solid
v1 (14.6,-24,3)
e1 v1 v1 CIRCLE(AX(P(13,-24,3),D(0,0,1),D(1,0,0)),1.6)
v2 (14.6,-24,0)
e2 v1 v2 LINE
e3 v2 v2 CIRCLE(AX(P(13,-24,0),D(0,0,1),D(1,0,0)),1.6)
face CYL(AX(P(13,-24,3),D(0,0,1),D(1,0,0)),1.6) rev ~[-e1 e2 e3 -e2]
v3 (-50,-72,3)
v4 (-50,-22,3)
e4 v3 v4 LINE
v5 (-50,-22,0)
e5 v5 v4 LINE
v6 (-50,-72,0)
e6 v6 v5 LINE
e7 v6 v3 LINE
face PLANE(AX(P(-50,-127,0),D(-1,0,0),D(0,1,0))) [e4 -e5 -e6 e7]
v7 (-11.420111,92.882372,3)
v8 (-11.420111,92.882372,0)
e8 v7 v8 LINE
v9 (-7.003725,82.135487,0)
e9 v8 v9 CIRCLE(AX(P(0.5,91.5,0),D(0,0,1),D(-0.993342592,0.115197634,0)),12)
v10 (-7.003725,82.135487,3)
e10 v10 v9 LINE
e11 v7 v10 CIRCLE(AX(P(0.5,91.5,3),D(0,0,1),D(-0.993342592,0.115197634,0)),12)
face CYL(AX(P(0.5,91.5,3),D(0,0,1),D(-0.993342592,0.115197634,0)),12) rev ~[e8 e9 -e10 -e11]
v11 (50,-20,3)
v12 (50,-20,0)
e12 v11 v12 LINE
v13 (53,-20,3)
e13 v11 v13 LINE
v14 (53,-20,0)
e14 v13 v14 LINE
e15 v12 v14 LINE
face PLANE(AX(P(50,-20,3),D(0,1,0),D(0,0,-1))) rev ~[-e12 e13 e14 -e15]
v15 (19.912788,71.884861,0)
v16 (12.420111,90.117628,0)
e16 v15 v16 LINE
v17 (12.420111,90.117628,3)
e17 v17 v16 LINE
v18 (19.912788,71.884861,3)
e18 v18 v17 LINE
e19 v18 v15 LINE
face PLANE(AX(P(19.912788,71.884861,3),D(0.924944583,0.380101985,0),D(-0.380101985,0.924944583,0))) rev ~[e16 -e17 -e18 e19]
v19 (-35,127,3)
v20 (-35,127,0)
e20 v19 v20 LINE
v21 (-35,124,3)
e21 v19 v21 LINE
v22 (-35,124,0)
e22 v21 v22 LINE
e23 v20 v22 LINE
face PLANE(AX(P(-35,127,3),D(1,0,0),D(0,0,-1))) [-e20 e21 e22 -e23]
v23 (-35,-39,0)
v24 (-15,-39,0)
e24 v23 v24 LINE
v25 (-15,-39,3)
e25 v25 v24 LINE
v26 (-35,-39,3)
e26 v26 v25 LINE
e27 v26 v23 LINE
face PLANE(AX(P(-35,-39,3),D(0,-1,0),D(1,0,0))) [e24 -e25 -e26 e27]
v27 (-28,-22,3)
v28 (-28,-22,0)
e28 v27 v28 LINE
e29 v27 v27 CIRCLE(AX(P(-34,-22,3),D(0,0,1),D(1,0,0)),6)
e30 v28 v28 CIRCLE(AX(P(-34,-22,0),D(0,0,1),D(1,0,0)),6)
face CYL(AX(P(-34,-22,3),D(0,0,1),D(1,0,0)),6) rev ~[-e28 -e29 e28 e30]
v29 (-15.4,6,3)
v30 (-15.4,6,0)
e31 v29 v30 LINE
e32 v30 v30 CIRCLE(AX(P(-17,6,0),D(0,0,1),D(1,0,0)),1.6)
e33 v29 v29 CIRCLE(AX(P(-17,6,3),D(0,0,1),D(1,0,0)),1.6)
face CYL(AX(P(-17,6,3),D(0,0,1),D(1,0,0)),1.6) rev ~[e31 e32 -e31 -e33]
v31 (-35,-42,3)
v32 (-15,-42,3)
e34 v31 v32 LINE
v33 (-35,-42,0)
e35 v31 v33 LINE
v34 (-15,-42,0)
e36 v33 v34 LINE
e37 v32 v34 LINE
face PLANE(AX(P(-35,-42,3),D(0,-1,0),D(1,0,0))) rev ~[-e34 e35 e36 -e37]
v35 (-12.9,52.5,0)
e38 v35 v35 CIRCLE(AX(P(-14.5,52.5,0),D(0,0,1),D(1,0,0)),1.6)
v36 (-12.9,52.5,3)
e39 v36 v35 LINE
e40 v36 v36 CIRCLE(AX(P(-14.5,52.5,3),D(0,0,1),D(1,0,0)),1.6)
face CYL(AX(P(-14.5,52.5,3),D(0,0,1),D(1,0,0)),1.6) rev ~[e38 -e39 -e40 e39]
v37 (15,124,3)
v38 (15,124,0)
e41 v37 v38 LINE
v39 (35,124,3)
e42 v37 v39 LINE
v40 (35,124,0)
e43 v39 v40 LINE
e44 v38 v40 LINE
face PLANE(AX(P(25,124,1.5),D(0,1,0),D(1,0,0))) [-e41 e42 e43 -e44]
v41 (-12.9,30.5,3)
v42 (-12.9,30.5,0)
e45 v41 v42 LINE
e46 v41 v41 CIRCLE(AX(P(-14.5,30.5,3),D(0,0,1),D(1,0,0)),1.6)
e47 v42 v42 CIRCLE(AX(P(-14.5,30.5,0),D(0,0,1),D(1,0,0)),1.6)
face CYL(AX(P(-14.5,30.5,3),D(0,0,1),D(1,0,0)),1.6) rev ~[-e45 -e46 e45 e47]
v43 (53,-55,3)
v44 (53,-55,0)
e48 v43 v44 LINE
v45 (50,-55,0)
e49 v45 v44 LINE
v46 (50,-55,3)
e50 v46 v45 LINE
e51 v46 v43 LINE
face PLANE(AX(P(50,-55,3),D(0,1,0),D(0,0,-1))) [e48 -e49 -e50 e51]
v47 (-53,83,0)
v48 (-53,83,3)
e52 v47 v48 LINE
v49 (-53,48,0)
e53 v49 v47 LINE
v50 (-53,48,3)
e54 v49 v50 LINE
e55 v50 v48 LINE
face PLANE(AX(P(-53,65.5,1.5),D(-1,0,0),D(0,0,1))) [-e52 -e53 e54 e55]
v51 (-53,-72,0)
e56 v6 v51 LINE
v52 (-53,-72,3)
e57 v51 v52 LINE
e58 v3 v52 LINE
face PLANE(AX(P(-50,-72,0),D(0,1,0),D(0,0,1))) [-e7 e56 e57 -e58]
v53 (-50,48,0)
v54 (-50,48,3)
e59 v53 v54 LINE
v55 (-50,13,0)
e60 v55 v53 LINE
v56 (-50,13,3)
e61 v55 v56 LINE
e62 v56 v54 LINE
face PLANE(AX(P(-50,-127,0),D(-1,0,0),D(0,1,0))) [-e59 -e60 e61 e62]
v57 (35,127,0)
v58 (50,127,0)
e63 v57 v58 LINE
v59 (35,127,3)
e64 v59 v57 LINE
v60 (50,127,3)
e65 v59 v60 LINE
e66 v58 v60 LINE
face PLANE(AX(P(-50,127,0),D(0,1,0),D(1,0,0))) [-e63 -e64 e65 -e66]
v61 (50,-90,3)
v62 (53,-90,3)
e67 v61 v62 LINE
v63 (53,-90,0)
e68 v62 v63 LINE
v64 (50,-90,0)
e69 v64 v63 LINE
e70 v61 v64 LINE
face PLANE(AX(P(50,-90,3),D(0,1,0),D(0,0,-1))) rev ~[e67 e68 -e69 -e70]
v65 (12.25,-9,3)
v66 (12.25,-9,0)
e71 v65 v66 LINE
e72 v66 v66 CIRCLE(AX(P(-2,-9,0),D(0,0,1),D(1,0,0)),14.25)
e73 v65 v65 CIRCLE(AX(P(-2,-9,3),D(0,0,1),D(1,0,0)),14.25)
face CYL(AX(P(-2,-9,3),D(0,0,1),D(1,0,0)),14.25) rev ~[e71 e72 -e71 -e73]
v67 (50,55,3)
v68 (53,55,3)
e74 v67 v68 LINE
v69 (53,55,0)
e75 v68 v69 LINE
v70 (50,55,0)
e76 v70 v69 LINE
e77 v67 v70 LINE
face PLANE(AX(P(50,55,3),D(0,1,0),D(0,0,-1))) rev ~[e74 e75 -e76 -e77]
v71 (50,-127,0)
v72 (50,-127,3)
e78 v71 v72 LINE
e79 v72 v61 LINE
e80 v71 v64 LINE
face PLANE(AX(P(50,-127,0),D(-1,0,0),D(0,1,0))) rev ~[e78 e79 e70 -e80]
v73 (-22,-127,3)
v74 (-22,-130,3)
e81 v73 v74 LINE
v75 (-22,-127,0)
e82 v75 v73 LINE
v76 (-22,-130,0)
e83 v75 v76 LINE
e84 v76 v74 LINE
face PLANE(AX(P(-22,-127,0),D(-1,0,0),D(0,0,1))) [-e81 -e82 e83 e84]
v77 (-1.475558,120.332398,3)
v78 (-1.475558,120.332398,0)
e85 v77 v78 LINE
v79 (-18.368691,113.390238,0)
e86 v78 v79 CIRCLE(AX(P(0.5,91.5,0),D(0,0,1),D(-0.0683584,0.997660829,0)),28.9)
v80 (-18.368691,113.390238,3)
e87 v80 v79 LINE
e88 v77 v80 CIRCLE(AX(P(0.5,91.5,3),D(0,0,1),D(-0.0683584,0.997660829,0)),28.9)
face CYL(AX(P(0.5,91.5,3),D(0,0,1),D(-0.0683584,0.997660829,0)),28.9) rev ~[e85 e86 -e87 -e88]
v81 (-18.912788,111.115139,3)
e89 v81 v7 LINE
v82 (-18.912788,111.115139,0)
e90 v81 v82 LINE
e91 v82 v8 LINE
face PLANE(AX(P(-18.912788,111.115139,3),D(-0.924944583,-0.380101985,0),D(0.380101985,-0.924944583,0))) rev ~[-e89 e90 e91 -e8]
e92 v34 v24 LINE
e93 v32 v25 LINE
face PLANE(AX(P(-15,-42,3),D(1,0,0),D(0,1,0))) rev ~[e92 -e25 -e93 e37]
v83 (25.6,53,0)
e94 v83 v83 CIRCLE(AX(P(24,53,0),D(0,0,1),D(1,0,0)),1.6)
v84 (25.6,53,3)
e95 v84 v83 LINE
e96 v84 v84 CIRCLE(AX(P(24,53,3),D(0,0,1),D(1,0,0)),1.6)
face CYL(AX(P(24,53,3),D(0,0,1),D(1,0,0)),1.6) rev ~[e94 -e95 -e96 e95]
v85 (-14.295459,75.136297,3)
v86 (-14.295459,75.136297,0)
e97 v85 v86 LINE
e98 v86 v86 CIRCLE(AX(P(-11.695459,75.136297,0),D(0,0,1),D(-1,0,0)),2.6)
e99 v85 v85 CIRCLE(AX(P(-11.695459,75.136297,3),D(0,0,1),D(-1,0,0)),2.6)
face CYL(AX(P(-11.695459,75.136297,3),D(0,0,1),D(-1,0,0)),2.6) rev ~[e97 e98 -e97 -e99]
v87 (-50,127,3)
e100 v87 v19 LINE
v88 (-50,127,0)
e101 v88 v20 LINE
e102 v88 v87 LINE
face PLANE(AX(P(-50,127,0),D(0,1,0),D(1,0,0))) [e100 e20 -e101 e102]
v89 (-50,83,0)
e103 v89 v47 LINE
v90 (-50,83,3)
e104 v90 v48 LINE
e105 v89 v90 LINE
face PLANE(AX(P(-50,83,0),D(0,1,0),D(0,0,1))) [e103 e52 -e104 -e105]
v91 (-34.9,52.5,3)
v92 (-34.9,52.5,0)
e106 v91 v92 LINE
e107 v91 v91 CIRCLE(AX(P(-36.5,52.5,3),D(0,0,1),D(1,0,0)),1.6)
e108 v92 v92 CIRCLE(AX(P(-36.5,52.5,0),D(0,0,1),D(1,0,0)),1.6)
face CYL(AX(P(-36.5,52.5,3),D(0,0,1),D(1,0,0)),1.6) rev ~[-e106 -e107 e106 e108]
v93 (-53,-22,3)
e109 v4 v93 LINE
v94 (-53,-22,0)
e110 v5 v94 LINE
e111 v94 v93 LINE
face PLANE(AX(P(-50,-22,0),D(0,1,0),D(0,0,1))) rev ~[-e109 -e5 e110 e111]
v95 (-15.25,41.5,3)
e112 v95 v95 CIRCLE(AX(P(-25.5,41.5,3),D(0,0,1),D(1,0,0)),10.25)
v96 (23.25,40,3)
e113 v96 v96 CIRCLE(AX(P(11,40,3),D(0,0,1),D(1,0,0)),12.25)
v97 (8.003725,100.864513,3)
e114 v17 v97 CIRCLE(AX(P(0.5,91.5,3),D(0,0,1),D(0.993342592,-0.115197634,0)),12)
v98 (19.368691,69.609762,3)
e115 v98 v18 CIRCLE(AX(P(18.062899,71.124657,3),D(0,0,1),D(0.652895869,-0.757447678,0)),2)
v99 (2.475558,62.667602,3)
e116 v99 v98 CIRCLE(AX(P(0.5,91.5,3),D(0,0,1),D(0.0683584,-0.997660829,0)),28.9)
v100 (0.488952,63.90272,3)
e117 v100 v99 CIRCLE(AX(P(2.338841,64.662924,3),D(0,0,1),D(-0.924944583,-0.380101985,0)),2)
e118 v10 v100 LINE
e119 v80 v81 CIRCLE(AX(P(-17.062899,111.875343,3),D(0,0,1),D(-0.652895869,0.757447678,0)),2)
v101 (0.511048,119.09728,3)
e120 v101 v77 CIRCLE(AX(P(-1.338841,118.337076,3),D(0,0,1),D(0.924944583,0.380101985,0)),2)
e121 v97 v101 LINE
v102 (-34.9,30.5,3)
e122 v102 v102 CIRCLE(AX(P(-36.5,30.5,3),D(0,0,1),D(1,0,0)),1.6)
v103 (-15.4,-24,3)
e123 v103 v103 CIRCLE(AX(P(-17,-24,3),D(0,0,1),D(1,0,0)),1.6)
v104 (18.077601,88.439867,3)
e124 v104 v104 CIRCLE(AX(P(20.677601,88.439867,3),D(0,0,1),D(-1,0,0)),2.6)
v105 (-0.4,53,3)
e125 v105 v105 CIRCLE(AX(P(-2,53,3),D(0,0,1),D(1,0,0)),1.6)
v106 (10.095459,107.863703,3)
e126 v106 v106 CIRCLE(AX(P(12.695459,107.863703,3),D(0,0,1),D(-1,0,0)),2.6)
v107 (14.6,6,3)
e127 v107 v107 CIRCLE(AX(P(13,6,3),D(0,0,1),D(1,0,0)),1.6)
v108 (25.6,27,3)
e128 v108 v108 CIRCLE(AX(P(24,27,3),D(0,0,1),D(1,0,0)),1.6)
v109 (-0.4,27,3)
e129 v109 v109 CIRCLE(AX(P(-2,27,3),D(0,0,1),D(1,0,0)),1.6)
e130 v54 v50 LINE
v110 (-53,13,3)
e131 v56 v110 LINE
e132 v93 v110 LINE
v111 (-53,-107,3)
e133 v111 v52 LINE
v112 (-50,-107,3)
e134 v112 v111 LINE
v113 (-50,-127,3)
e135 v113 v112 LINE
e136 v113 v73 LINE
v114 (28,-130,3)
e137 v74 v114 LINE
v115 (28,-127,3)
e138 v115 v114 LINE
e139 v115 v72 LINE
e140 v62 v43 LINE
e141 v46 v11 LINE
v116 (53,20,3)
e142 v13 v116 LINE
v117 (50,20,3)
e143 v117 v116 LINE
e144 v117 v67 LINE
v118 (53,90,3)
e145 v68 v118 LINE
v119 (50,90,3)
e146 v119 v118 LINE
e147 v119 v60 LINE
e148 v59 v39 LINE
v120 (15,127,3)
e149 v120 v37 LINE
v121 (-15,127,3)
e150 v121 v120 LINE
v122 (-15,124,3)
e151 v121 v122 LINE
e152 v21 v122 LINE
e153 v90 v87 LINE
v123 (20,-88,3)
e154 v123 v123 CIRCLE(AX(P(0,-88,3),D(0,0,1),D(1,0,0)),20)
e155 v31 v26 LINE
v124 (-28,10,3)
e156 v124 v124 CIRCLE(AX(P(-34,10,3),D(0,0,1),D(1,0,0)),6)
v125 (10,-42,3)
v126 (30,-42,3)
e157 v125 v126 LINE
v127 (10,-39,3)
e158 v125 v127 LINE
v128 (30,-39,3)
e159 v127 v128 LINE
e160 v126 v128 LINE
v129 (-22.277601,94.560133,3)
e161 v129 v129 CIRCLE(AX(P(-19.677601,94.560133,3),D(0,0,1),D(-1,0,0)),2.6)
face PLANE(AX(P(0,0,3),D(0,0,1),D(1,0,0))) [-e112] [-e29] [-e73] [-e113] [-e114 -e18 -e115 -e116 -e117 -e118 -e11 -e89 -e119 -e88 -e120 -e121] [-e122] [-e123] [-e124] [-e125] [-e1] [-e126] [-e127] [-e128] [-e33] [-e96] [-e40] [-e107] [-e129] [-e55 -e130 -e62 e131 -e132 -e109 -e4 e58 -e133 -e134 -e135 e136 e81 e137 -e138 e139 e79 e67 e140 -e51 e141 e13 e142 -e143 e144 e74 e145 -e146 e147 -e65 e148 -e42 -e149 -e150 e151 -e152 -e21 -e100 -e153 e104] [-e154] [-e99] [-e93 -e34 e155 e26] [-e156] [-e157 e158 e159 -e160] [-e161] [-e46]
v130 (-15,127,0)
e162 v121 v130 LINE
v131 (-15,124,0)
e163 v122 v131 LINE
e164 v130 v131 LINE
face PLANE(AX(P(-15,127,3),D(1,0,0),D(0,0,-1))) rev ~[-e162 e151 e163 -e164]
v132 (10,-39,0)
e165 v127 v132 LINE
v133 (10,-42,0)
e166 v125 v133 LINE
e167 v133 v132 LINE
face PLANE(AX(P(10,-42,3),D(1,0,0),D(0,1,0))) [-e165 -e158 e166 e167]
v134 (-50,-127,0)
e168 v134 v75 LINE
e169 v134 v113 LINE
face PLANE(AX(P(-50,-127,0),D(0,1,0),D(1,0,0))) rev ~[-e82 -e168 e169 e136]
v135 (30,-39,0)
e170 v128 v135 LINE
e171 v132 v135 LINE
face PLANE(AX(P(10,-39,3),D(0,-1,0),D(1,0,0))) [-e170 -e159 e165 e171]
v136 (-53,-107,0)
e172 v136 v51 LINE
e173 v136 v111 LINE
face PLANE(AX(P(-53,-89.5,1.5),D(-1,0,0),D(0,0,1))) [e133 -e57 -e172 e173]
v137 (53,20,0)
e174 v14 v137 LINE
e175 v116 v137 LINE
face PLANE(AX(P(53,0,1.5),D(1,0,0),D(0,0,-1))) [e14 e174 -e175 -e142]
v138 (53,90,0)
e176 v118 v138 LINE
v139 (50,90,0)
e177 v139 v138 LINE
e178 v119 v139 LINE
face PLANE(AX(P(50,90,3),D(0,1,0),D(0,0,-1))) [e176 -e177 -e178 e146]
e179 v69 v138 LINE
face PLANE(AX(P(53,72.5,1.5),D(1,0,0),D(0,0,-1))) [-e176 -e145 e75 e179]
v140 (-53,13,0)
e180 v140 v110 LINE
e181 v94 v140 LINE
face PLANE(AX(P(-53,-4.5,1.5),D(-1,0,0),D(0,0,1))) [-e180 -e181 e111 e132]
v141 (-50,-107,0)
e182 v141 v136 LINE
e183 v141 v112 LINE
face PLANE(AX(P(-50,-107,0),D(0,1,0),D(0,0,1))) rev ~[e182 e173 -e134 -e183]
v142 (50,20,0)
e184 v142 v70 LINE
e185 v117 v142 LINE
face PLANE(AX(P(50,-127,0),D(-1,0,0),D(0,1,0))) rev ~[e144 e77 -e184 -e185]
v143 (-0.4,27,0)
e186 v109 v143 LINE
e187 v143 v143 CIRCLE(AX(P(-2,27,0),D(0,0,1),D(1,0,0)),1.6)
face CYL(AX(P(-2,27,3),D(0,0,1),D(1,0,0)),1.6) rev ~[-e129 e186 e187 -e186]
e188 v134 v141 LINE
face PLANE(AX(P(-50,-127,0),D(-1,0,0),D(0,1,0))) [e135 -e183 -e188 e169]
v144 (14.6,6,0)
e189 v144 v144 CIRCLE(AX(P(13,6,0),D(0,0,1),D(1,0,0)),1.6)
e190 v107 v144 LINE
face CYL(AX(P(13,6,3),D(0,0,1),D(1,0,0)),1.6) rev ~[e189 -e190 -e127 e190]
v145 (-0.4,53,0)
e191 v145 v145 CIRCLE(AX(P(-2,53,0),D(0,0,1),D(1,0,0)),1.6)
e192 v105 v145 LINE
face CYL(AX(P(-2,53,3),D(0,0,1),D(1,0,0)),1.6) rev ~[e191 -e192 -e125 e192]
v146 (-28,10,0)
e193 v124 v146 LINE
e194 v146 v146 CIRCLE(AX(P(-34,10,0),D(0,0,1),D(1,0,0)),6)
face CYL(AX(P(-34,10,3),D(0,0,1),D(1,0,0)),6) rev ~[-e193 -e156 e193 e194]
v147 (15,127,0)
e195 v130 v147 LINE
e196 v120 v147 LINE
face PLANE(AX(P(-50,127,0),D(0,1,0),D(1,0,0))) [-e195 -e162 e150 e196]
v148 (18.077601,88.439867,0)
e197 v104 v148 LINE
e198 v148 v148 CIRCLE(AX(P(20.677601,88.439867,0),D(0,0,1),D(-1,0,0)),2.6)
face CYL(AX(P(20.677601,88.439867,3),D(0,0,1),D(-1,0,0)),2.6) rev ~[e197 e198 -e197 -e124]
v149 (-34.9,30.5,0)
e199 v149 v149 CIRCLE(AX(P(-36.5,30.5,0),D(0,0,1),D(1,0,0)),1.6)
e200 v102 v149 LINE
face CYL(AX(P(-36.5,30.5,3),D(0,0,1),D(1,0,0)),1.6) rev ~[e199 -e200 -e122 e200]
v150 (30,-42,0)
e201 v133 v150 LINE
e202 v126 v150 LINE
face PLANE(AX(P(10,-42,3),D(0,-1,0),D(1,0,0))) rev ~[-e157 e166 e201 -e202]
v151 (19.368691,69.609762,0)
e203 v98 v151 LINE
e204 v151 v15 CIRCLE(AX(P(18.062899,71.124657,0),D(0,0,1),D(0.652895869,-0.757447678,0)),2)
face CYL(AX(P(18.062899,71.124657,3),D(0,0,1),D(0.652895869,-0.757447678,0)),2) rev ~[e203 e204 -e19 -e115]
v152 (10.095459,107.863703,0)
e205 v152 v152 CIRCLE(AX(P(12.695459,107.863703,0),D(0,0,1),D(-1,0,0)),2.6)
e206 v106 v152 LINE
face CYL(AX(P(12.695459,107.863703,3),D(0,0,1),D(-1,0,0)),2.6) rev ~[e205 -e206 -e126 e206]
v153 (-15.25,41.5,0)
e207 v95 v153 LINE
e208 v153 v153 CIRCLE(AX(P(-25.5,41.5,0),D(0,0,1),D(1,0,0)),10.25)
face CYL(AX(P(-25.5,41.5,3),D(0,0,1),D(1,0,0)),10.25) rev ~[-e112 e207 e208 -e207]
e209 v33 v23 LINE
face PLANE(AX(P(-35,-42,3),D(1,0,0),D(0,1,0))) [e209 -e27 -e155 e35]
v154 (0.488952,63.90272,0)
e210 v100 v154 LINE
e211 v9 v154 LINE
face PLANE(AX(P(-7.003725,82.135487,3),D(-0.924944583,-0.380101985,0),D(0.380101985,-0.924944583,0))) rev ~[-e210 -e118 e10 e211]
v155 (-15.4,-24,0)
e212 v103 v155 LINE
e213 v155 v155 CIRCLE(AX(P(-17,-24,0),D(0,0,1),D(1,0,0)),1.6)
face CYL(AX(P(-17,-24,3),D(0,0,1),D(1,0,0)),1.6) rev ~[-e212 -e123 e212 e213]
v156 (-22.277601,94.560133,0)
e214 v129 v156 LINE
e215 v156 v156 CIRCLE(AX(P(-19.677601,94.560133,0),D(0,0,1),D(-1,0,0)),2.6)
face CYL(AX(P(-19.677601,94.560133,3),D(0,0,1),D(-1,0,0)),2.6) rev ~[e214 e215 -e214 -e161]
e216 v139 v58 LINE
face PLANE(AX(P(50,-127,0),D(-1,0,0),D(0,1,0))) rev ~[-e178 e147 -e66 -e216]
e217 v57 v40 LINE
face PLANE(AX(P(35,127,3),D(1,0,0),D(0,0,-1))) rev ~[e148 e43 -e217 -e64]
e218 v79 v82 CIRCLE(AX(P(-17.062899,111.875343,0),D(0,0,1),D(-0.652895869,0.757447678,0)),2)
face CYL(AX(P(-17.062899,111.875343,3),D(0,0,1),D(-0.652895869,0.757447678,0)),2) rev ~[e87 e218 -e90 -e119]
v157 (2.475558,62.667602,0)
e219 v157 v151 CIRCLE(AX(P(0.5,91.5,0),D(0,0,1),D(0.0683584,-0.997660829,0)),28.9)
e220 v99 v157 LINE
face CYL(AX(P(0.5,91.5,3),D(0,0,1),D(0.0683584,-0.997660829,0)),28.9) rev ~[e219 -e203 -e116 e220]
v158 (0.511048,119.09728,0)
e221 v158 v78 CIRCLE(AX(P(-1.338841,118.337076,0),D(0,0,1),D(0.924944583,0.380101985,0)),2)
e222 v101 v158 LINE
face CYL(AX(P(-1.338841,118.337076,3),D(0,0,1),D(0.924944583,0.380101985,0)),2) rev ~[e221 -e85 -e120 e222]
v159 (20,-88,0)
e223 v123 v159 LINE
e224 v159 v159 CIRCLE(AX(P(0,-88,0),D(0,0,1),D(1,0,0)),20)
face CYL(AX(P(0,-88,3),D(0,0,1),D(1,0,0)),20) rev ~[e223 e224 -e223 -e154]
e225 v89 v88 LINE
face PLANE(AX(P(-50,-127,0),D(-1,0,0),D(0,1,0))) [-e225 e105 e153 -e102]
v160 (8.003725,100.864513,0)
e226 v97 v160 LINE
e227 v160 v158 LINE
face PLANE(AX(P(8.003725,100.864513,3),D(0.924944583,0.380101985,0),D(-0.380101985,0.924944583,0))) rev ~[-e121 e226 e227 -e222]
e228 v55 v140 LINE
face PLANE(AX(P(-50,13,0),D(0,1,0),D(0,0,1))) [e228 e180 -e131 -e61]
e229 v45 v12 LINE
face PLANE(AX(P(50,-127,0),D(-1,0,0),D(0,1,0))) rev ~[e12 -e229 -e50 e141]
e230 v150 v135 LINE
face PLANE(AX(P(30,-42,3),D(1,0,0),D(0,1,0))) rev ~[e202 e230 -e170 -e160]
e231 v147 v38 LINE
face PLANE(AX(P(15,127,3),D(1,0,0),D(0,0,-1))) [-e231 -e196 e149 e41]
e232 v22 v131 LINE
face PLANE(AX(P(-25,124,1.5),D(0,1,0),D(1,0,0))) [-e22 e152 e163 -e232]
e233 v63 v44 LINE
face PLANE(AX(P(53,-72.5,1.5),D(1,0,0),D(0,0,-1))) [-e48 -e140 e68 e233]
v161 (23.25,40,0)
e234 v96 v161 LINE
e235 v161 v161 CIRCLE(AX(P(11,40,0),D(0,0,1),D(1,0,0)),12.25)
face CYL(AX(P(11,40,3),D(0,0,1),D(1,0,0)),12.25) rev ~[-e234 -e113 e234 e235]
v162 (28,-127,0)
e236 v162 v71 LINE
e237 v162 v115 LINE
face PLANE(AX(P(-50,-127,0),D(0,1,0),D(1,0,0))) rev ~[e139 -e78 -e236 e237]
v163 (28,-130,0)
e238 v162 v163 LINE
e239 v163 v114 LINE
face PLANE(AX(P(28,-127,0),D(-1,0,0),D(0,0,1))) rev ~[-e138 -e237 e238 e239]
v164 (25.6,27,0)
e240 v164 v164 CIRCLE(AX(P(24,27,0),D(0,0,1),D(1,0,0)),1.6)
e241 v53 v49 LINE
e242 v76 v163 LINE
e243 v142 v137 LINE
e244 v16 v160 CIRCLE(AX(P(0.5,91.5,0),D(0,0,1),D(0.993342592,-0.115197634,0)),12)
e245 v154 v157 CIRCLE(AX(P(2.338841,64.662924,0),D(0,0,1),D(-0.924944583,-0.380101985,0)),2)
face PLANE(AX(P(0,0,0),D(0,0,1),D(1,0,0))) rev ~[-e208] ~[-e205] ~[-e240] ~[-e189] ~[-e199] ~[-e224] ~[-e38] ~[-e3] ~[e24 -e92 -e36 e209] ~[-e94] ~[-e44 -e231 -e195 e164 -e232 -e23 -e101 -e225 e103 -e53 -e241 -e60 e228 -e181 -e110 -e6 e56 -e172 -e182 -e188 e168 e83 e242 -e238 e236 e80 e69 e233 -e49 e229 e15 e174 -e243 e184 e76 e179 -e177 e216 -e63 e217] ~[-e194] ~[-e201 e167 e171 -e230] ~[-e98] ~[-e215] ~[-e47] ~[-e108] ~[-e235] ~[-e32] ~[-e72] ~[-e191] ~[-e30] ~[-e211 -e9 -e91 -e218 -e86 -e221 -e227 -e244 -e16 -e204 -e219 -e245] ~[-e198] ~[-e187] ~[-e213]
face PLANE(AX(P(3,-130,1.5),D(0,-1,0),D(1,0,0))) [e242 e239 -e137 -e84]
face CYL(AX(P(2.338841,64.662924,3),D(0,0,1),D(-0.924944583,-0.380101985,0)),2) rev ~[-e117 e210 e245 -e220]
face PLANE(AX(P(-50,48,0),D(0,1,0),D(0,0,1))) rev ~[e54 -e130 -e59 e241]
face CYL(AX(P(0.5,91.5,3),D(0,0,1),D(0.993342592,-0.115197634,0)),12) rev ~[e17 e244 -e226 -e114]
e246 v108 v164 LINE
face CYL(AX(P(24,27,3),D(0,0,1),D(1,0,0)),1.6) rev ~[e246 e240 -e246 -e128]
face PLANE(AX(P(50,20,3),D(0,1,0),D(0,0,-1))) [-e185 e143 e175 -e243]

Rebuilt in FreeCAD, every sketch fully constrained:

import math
import FreeCAD as App
import Part
import Sketcher
Q = App.Units.Quantity

doc = App.newDocument("Part")
body = doc.addObject("PartDesign::Body", "Body")

# Sketch on XY plane
sketch1 = body.newObject("Sketcher::SketchObject", "Sketch")
sketch1.AttachmentSupport = (doc.getObject("XY_Plane"), [""])
sketch1.MapMode = "FlatFace"
sketch1.addGeometry(Part.LineSegment(App.Vector(-50, 127, 0), App.Vector(-50, -127, 0)), False)
sketch1.addGeometry(Part.LineSegment(App.Vector(-50, -127, 0), App.Vector(50, -127, 0)), False)
sketch1.addGeometry(Part.LineSegment(App.Vector(50, -127, 0), App.Vector(50, 127, 0)), False)
sketch1.addGeometry(Part.LineSegment(App.Vector(50, 127, 0), App.Vector(-50, 127, 0)), False)
sketch1.addConstraint(Sketcher.Constraint("Coincident", 0, 2, 1, 1))
sketch1.addConstraint(Sketcher.Constraint("Coincident", 1, 2, 2, 1))
sketch1.addConstraint(Sketcher.Constraint("Coincident", 2, 2, 3, 1))
sketch1.addConstraint(Sketcher.Constraint("Coincident", 3, 2, 0, 1))
sketch1.addConstraint(Sketcher.Constraint("Vertical", 0))
sketch1.addConstraint(Sketcher.Constraint("Horizontal", 1))
sketch1.addConstraint(Sketcher.Constraint("Vertical", 2))
sketch1.addConstraint(Sketcher.Constraint("Horizontal", 3))
sketch1.addConstraint(Sketcher.Constraint("Symmetric", 0, 2, 2, 2, -1, 1))
sketch1.addConstraint(Sketcher.Constraint("DistanceX", 1, 1, 1, 2, Q("100 mm")))
sketch1.addConstraint(Sketcher.Constraint("DistanceY", 0, 2, 0, 1, Q("254 mm")))
pad1 = body.newObject("PartDesign::Pad", "Pad")
pad1.Profile = sketch1
pad1.Length = 3

# Sketch on YZ plane
sketch2 = body.newObject("Sketcher::SketchObject", "Sketch001")
sketch2.AttachmentSupport = (doc.getObject("YZ_Plane"), [""])
sketch2.MapMode = "FlatFace"
sketch2.AttachmentOffset = App.Placement(App.Vector(0, 0, 50), App.Rotation())
sketch2.addGeometry(Part.LineSegment(App.Vector(90, 3, 0), App.Vector(55, 3, 0)), False)
sketch2.addGeometry(Part.LineSegment(App.Vector(55, 3, 0), App.Vector(55, 0, 0)), False)
sketch2.addGeometry(Part.LineSegment(App.Vector(55, 0, 0), App.Vector(90, 0, 0)), False)
sketch2.addGeometry(Part.LineSegment(App.Vector(90, 0, 0), App.Vector(90, 3, 0)), False)
sketch2.addGeometry(Part.LineSegment(App.Vector(20, 3, 0), App.Vector(-20, 3, 0)), False)
sketch2.addGeometry(Part.LineSegment(App.Vector(-20, 3, 0), App.Vector(-20, 0, 0)), False)
sketch2.addGeometry(Part.LineSegment(App.Vector(-20, 0, 0), App.Vector(20, 0, 0)), False)
sketch2.addGeometry(Part.LineSegment(App.Vector(20, 0, 0), App.Vector(20, 3, 0)), False)
sketch2.addGeometry(Part.LineSegment(App.Vector(-55, 3, 0), App.Vector(-90, 3, 0)), False)
sketch2.addGeometry(Part.LineSegment(App.Vector(-90, 3, 0), App.Vector(-90, 0, 0)), False)
sketch2.addGeometry(Part.LineSegment(App.Vector(-90, 0, 0), App.Vector(-55, 0, 0)), False)
sketch2.addGeometry(Part.LineSegment(App.Vector(-55, 0, 0), App.Vector(-55, 3, 0)), False)
sketch2.addConstraint(Sketcher.Constraint("Coincident", 0, 2, 1, 1))
sketch2.addConstraint(Sketcher.Constraint("Coincident", 1, 2, 2, 1))
sketch2.addConstraint(Sketcher.Constraint("Coincident", 2, 2, 3, 1))
sketch2.addConstraint(Sketcher.Constraint("Coincident", 3, 2, 0, 1))
sketch2.addConstraint(Sketcher.Constraint("Coincident", 4, 2, 5, 1))
sketch2.addConstraint(Sketcher.Constraint("Coincident", 5, 2, 6, 1))
sketch2.addConstraint(Sketcher.Constraint("Coincident", 6, 2, 7, 1))
sketch2.addConstraint(Sketcher.Constraint("Coincident", 7, 2, 4, 1))
sketch2.addConstraint(Sketcher.Constraint("Coincident", 8, 2, 9, 1))
sketch2.addConstraint(Sketcher.Constraint("Coincident", 9, 2, 10, 1))
sketch2.addConstraint(Sketcher.Constraint("Coincident", 10, 2, 11, 1))
sketch2.addConstraint(Sketcher.Constraint("Coincident", 11, 2, 8, 1))
sketch2.addConstraint(Sketcher.Constraint("Horizontal", 0))
sketch2.addConstraint(Sketcher.Constraint("Vertical", 1))
sketch2.addConstraint(Sketcher.Constraint("Horizontal", 2))
sketch2.addConstraint(Sketcher.Constraint("Vertical", 3))
sketch2.addConstraint(Sketcher.Constraint("Horizontal", 4))
sketch2.addConstraint(Sketcher.Constraint("Vertical", 5))
sketch2.addConstraint(Sketcher.Constraint("Horizontal", 6))
sketch2.addConstraint(Sketcher.Constraint("Vertical", 7))
sketch2.addConstraint(Sketcher.Constraint("Horizontal", 8))
sketch2.addConstraint(Sketcher.Constraint("Vertical", 9))
sketch2.addConstraint(Sketcher.Constraint("Horizontal", 10))
sketch2.addConstraint(Sketcher.Constraint("Vertical", 11))
sketch2.addConstraint(Sketcher.Constraint("Symmetric", 5, 2, 6, 2, -1, 1))
sketch2.addConstraint(Sketcher.Constraint("Symmetric", 2, 2, 9, 2, -1, 1))
sketch2.addConstraint(Sketcher.Constraint("Symmetric", 1, 2, 10, 2, -2))
sketch2.addConstraint(Sketcher.Constraint("Horizontal", 3, 2, 4, 2))
sketch2.addConstraint(Sketcher.Constraint("Horizontal", 7, 2, 8, 2))
sketch2.addConstraint(Sketcher.Constraint("DistanceX", 0, 2, 0, 1, Q("35 mm")))
sketch2.addConstraint(Sketcher.Constraint("DistanceX", 4, 2, 4, 1, Q("40 mm")))
sketch2.addConstraint(Sketcher.Constraint("DistanceY", 1, 2, 1, 1, Q("3 mm")))
sketch2.addConstraint(Sketcher.Constraint("DistanceX", -1, 1, 0, 2, Q("55 mm")))
pad2 = body.newObject("PartDesign::Pad", "Pad001")
pad2.Profile = sketch2
pad2.Length = 3

# Sketch on XZ plane
sketch3 = body.newObject("Sketcher::SketchObject", "Sketch002")
sketch3.AttachmentSupport = (doc.getObject("XZ_Plane"), [""])
sketch3.MapMode = "FlatFace"
sketch3.AttachmentOffset = App.Placement(App.Vector(0, 0, -127), App.Rotation())
sketch3.addGeometry(Part.LineSegment(App.Vector(15, 0, 0), App.Vector(15, 3, 0)), False)
sketch3.addGeometry(Part.LineSegment(App.Vector(15, 3, 0), App.Vector(35, 3, 0)), False)
sketch3.addGeometry(Part.LineSegment(App.Vector(35, 3, 0), App.Vector(35, 0, 0)), False)
sketch3.addGeometry(Part.LineSegment(App.Vector(35, 0, 0), App.Vector(15, 0, 0)), False)
sketch3.addGeometry(Part.LineSegment(App.Vector(-35, 0, 0), App.Vector(-35, 3, 0)), False)
sketch3.addGeometry(Part.LineSegment(App.Vector(-35, 3, 0), App.Vector(-15, 3, 0)), False)
sketch3.addGeometry(Part.LineSegment(App.Vector(-15, 3, 0), App.Vector(-15, 0, 0)), False)
sketch3.addGeometry(Part.LineSegment(App.Vector(-15, 0, 0), App.Vector(-35, 0, 0)), False)
sketch3.addConstraint(Sketcher.Constraint("Coincident", 0, 2, 1, 1))
sketch3.addConstraint(Sketcher.Constraint("Coincident", 1, 2, 2, 1))
sketch3.addConstraint(Sketcher.Constraint("Coincident", 2, 2, 3, 1))
sketch3.addConstraint(Sketcher.Constraint("Coincident", 3, 2, 0, 1))
sketch3.addConstraint(Sketcher.Constraint("Coincident", 4, 2, 5, 1))
sketch3.addConstraint(Sketcher.Constraint("Coincident", 5, 2, 6, 1))
sketch3.addConstraint(Sketcher.Constraint("Coincident", 6, 2, 7, 1))
sketch3.addConstraint(Sketcher.Constraint("Coincident", 7, 2, 4, 1))
sketch3.addConstraint(Sketcher.Constraint("Vertical", 0))
sketch3.addConstraint(Sketcher.Constraint("Horizontal", 1))
sketch3.addConstraint(Sketcher.Constraint("Vertical", 2))
sketch3.addConstraint(Sketcher.Constraint("Horizontal", 3))
sketch3.addConstraint(Sketcher.Constraint("Vertical", 4))
sketch3.addConstraint(Sketcher.Constraint("Horizontal", 5))
sketch3.addConstraint(Sketcher.Constraint("Vertical", 6))
sketch3.addConstraint(Sketcher.Constraint("Horizontal", 7))
sketch3.addConstraint(Sketcher.Constraint("Symmetric", 3, 2, 6, 2, -1, 1))
sketch3.addConstraint(Sketcher.Constraint("Symmetric", 1, 2, 4, 2, -2))
sketch3.addConstraint(Sketcher.Constraint("PointOnObject", 2, 2, -1))
sketch3.addConstraint(Sketcher.Constraint("DistanceX", 1, 1, 1, 2, Q("20 mm")))
sketch3.addConstraint(Sketcher.Constraint("DistanceY", 0, 1, 0, 2, Q("3 mm")))
sketch3.addConstraint(Sketcher.Constraint("DistanceX", -1, 1, 0, 2, Q("15 mm")))
pocket1 = body.newObject("PartDesign::Pocket", "Pocket")
pocket1.Profile = sketch3
pocket1.Length = 3
pocket1.Reversed = True

# Sketch on XY plane
sketch4 = body.newObject("Sketcher::SketchObject", "Sketch003")
sketch4.AttachmentSupport = (doc.getObject("XY_Plane"), [""])
sketch4.MapMode = "FlatFace"
sketch4.AttachmentOffset = App.Placement(App.Vector(0, 0, 3), App.Rotation())
sketch4.addGeometry(Part.LineSegment(App.Vector(-35, -39, 0), App.Vector(-35, -42, 0)), False)
sketch4.addGeometry(Part.LineSegment(App.Vector(-35, -42, 0), App.Vector(-15, -42, 0)), False)
sketch4.addGeometry(Part.LineSegment(App.Vector(-15, -42, 0), App.Vector(-15, -39, 0)), False)
sketch4.addGeometry(Part.LineSegment(App.Vector(-15, -39, 0), App.Vector(-35, -39, 0)), False)
sketch4.addGeometry(Part.LineSegment(App.Vector(10, -39, 0), App.Vector(10, -42, 0)), False)
sketch4.addGeometry(Part.LineSegment(App.Vector(10, -42, 0), App.Vector(30, -42, 0)), False)
sketch4.addGeometry(Part.LineSegment(App.Vector(30, -42, 0), App.Vector(30, -39, 0)), False)
sketch4.addGeometry(Part.LineSegment(App.Vector(30, -39, 0), App.Vector(10, -39, 0)), False)
sketch4.addConstraint(Sketcher.Constraint("Coincident", 0, 2, 1, 1))
sketch4.addConstraint(Sketcher.Constraint("Coincident", 1, 2, 2, 1))
sketch4.addConstraint(Sketcher.Constraint("Coincident", 2, 2, 3, 1))
sketch4.addConstraint(Sketcher.Constraint("Coincident", 3, 2, 0, 1))
sketch4.addConstraint(Sketcher.Constraint("Coincident", 4, 2, 5, 1))
sketch4.addConstraint(Sketcher.Constraint("Coincident", 5, 2, 6, 1))
sketch4.addConstraint(Sketcher.Constraint("Coincident", 6, 2, 7, 1))
sketch4.addConstraint(Sketcher.Constraint("Coincident", 7, 2, 4, 1))
sketch4.addConstraint(Sketcher.Constraint("Vertical", 0))
sketch4.addConstraint(Sketcher.Constraint("Horizontal", 1))
sketch4.addConstraint(Sketcher.Constraint("Vertical", 2))
sketch4.addConstraint(Sketcher.Constraint("Horizontal", 3))
sketch4.addConstraint(Sketcher.Constraint("Vertical", 4))
sketch4.addConstraint(Sketcher.Constraint("Horizontal", 5))
sketch4.addConstraint(Sketcher.Constraint("Vertical", 6))
sketch4.addConstraint(Sketcher.Constraint("Horizontal", 7))
sketch4.addConstraint(Sketcher.Constraint("Horizontal", 1, 2, 4, 2))
sketch4.addConstraint(Sketcher.Constraint("Horizontal", 3, 2, 6, 2))
sketch4.addConstraint(Sketcher.Constraint("Equal", 3, 5))
sketch4.addConstraint(Sketcher.Constraint("DistanceX", 1, 1, 1, 2, Q("20 mm")))
sketch4.addConstraint(Sketcher.Constraint("DistanceY", 0, 2, 0, 1, Q("3 mm")))
sketch4.addConstraint(Sketcher.Constraint("DistanceX", 0, 2, -1, 1, Q("35 mm")))
sketch4.addConstraint(Sketcher.Constraint("DistanceY", 0, 2, -1, 1, Q("42 mm")))
sketch4.addConstraint(Sketcher.Constraint("DistanceX", -1, 1, 4, 2, Q("10 mm")))
pocket2 = body.newObject("PartDesign::Pocket", "Pocket001")
pocket2.Profile = sketch4
pocket2.Length = 3

# Sketch on XY plane
sketch5 = body.newObject("Sketcher::SketchObject", "Sketch004")
sketch5.AttachmentSupport = (doc.getObject("XY_Plane"), [""])
sketch5.MapMode = "FlatFace"
sketch5.AttachmentOffset = App.Placement(App.Vector(0, 0, 3), App.Rotation())
sketch5.addGeometry(Part.Circle(App.Vector(0, -88, 0), App.Vector(0, 0, 1), 20), False)
sketch5.addGeometry(Part.Circle(App.Vector(-25.5, 41.5, 0), App.Vector(0, 0, 1), 10.2), False)
sketch5.addGeometry(Part.Circle(App.Vector(-36.5, 52.5, 0), App.Vector(0, 0, 1), 1.6), False)
sketch5.addGeometry(Part.Circle(App.Vector(-14.5, 52.5, 0), App.Vector(0, 0, 1), 1.6), False)
sketch5.addGeometry(Part.Circle(App.Vector(-36.5, 30.5, 0), App.Vector(0, 0, 1), 1.6), False)
sketch5.addGeometry(Part.Circle(App.Vector(-14.5, 30.5, 0), App.Vector(0, 0, 1), 1.6), False)
sketch5.addGeometry(Part.Circle(App.Vector(-17, 6, 0), App.Vector(0, 0, 1), 1.6), False)
sketch5.addGeometry(Part.Circle(App.Vector(13, 6, 0), App.Vector(0, 0, 1), 1.6), False)
sketch5.addGeometry(Part.Circle(App.Vector(-17, -24, 0), App.Vector(0, 0, 1), 1.6), False)
sketch5.addGeometry(Part.Circle(App.Vector(13, -24, 0), App.Vector(0, 0, 1), 1.6), False)
sketch5.addGeometry(Part.Circle(App.Vector(-2, -9, 0), App.Vector(0, 0, 1), 14.2), False)
sketch5.addGeometry(Part.Circle(App.Vector(11, 40, 0), App.Vector(0, 0, 1), 12.2), False)
sketch5.addGeometry(Part.Circle(App.Vector(-2, 53, 0), App.Vector(0, 0, 1), 1.6), False)
sketch5.addGeometry(Part.Circle(App.Vector(24, 53, 0), App.Vector(0, 0, 1), 1.6), False)
sketch5.addGeometry(Part.Circle(App.Vector(24, 27, 0), App.Vector(0, 0, 1), 1.6), False)
sketch5.addGeometry(Part.Circle(App.Vector(-2, 27, 0), App.Vector(0, 0, 1), 1.6), False)
sketch5.addGeometry(Part.Circle(App.Vector(-19.7, 94.6, 0), App.Vector(0, 0, 1), 2.6), False)
sketch5.addGeometry(Part.Circle(App.Vector(-11.7, 75.1, 0), App.Vector(0, 0, 1), 2.6), False)
sketch5.addGeometry(Part.Circle(App.Vector(12.7, 107.9, 0), App.Vector(0, 0, 1), 2.6), False)
sketch5.addGeometry(Part.Circle(App.Vector(20.7, 88.4, 0), App.Vector(0, 0, 1), 2.6), False)
sketch5.addGeometry(Part.Circle(App.Vector(-34, 10, 0), App.Vector(0, 0, 1), 6), False)
sketch5.addGeometry(Part.Circle(App.Vector(-34, -22, 0), App.Vector(0, 0, 1), 6), False)
sketch5.addGeometry(Part.LineSegment(App.Vector(8, 100.9, 0), App.Vector(0.5, 119.1, 0)), False)
sketch5.addGeometry(Part.ArcOfCircle(Part.Circle(App.Vector(-1.3, 118.3, 0), App.Vector(0, 0, 1), 2), math.radians(22), math.radians(94)), False)
sketch5.addGeometry(Part.ArcOfCircle(Part.Circle(App.Vector(0.5, 91.5, 0), App.Vector(0, 0, 1), 28.9), math.radians(94), math.radians(131)), False)
sketch5.addGeometry(Part.ArcOfCircle(Part.Circle(App.Vector(-17.1, 111.9, 0), App.Vector(0, 0, 1), 2), math.radians(131), math.radians(202)), False)
sketch5.addGeometry(Part.LineSegment(App.Vector(-18.9, 111.1, 0), App.Vector(-11.4, 92.9, 0)), False)
sketch5.addGeometry(Part.ArcOfCircle(Part.Circle(App.Vector(0.5, 91.5, 0), App.Vector(0, 0, 1), 12), math.radians(173), math.radians(231)), False)
sketch5.addGeometry(Part.LineSegment(App.Vector(-7, 82.1, 0), App.Vector(0.5, 63.9, 0)), False)
sketch5.addGeometry(Part.ArcOfCircle(Part.Circle(App.Vector(2.3, 64.7, 0), App.Vector(0, 0, 1), 2), math.radians(-158), math.radians(-86)), False)
sketch5.addGeometry(Part.ArcOfCircle(Part.Circle(App.Vector(0.5, 91.5, 0), App.Vector(0, 0, 1), 28.9), math.radians(-86), math.radians(-49)), False)
sketch5.addGeometry(Part.ArcOfCircle(Part.Circle(App.Vector(18.1, 71.1, 0), App.Vector(0, 0, 1), 2), math.radians(-49), math.radians(22)), False)
sketch5.addGeometry(Part.LineSegment(App.Vector(19.9, 71.9, 0), App.Vector(12.4, 90.1, 0)), False)
sketch5.addGeometry(Part.ArcOfCircle(Part.Circle(App.Vector(0.5, 91.5, 0), App.Vector(0, 0, 1), 12), math.radians(-7), math.radians(51)), False)
sketch5.addConstraint(Sketcher.Constraint("Tangent", 22, 2, 23, 1))
sketch5.addConstraint(Sketcher.Constraint("Tangent", 23, 2, 24, 1))
sketch5.addConstraint(Sketcher.Constraint("Tangent", 24, 2, 25, 1))
sketch5.addConstraint(Sketcher.Constraint("Tangent", 25, 2, 26, 1))
sketch5.addConstraint(Sketcher.Constraint("Coincident", 26, 2, 27, 1))
sketch5.addConstraint(Sketcher.Constraint("Coincident", 27, 2, 28, 1))
sketch5.addConstraint(Sketcher.Constraint("Tangent", 28, 2, 29, 1))
sketch5.addConstraint(Sketcher.Constraint("Tangent", 29, 2, 30, 1))
sketch5.addConstraint(Sketcher.Constraint("Tangent", 30, 2, 31, 1))
sketch5.addConstraint(Sketcher.Constraint("Tangent", 31, 2, 32, 1))
sketch5.addConstraint(Sketcher.Constraint("Coincident", 32, 2, 33, 1))
sketch5.addConstraint(Sketcher.Constraint("Coincident", 33, 2, 22, 1))
sketch5.addConstraint(Sketcher.Constraint("Coincident", 27, 3, 24, 3))
sketch5.addConstraint(Sketcher.Constraint("Coincident", 30, 3, 24, 3))
sketch5.addConstraint(Sketcher.Constraint("Coincident", 33, 3, 24, 3))
sketch5.addConstraint(Sketcher.Constraint("Equal", 2, 3))
sketch5.addConstraint(Sketcher.Constraint("Equal", 3, 4))
sketch5.addConstraint(Sketcher.Constraint("Equal", 4, 5))
sketch5.addConstraint(Sketcher.Constraint("Equal", 5, 6))
sketch5.addConstraint(Sketcher.Constraint("Equal", 6, 7))
sketch5.addConstraint(Sketcher.Constraint("Equal", 7, 8))
sketch5.addConstraint(Sketcher.Constraint("Equal", 8, 9))
sketch5.addConstraint(Sketcher.Constraint("Equal", 9, 12))
sketch5.addConstraint(Sketcher.Constraint("Equal", 12, 13))
sketch5.addConstraint(Sketcher.Constraint("Equal", 13, 14))
sketch5.addConstraint(Sketcher.Constraint("Equal", 14, 15))
sketch5.addConstraint(Sketcher.Constraint("Equal", 16, 17))
sketch5.addConstraint(Sketcher.Constraint("Equal", 17, 18))
sketch5.addConstraint(Sketcher.Constraint("Equal", 18, 19))
sketch5.addConstraint(Sketcher.Constraint("Equal", 20, 21))
sketch5.addConstraint(Sketcher.Constraint("Equal", 23, 25))
sketch5.addConstraint(Sketcher.Constraint("Equal", 25, 29))
sketch5.addConstraint(Sketcher.Constraint("Equal", 24, 30))
sketch5.addConstraint(Sketcher.Constraint("Equal", 29, 31))
sketch5.addConstraint(Sketcher.Constraint("Equal", 27, 33))
sketch5.addConstraint(Sketcher.Constraint("PointOnObject", 0, 3, -2))
sketch5.addConstraint(Sketcher.Constraint("Parallel", 22, 26))
sketch5.addConstraint(Sketcher.Constraint("Parallel", 26, 28))
sketch5.addConstraint(Sketcher.Constraint("Parallel", 28, 32))
sketch5.addConstraint(Sketcher.Constraint("Horizontal", 2, 3, 3, 3))
sketch5.addConstraint(Sketcher.Constraint("Horizontal", 4, 3, 5, 3))
sketch5.addConstraint(Sketcher.Constraint("Horizontal", 6, 3, 7, 3))
sketch5.addConstraint(Sketcher.Constraint("Horizontal", 8, 3, 9, 3))
sketch5.addConstraint(Sketcher.Constraint("Horizontal", 12, 3, 13, 3))
sketch5.addConstraint(Sketcher.Constraint("Horizontal", 14, 3, 15, 3))
sketch5.addConstraint(Sketcher.Constraint("Vertical", 2, 3, 4, 3))
sketch5.addConstraint(Sketcher.Constraint("Vertical", 3, 3, 5, 3))
sketch5.addConstraint(Sketcher.Constraint("Vertical", 6, 3, 8, 3))
sketch5.addConstraint(Sketcher.Constraint("Vertical", 7, 3, 9, 3))
sketch5.addConstraint(Sketcher.Constraint("Vertical", 10, 3, 12, 3))
sketch5.addConstraint(Sketcher.Constraint("Vertical", 13, 3, 14, 3))
sketch5.addConstraint(Sketcher.Constraint("Vertical", 12, 3, 15, 3))
sketch5.addConstraint(Sketcher.Constraint("Vertical", 20, 3, 21, 3))
sketch5.addConstraint(Sketcher.Constraint("Equal", 22, 26))
sketch5.addConstraint(Sketcher.Constraint("Equal", 26, 28))
sketch5.addConstraint(Sketcher.Constraint("Equal", 28, 32))
sketch5.addConstraint(Sketcher.Constraint("Diameter", 0, Q("40 mm")))
sketch5.addConstraint(Sketcher.Constraint("Diameter", 20, Q("12 mm")))
sketch5.addConstraint(Sketcher.Constraint("Radius", 23, Q("2 mm")))
sketch5.addConstraint(Sketcher.Constraint("Radius", 27, Q("12 mm")))
sketch5.addConstraint(Sketcher.Constraint("Diameter", 1, Q("20.5 mm")))
sketch5.addConstraint(Sketcher.Constraint("Diameter", 2, Q("3.2 mm")))
sketch5.addConstraint(Sketcher.Constraint("Diameter", 10, Q("28.5 mm")))
sketch5.addConstraint(Sketcher.Constraint("Diameter", 11, Q("24.5 mm")))
sketch5.addConstraint(Sketcher.Constraint("Diameter", 16, Q("5.2 mm")))
sketch5.addConstraint(Sketcher.Constraint("Radius", 24, Q("28.9 mm")))
sketch5.addConstraint(Sketcher.Constraint("DistanceY", 0, 3, -1, 1, Q("88 mm")))
sketch5.addConstraint(Sketcher.Constraint("DistanceX", 6, 3, -1, 1, Q("17 mm")))
sketch5.addConstraint(Sketcher.Constraint("DistanceY", -1, 1, 6, 3, Q("6 mm")))
sketch5.addConstraint(Sketcher.Constraint("DistanceX", -1, 1, 7, 3, Q("13 mm")))
sketch5.addConstraint(Sketcher.Constraint("DistanceY", 8, 3, -1, 1, Q("24 mm")))
sketch5.addConstraint(Sketcher.Constraint("DistanceX", 10, 3, -1, 1, Q("2 mm")))
sketch5.addConstraint(Sketcher.Constraint("DistanceY", 10, 3, -1, 1, Q("9 mm")))
sketch5.addConstraint(Sketcher.Constraint("DistanceX", -1, 1, 11, 3, Q("11 mm")))
sketch5.addConstraint(Sketcher.Constraint("DistanceY", -1, 1, 11, 3, Q("40 mm")))
sketch5.addConstraint(Sketcher.Constraint("DistanceY", -1, 1, 12, 3, Q("53 mm")))
sketch5.addConstraint(Sketcher.Constraint("DistanceX", -1, 1, 13, 3, Q("24 mm")))
sketch5.addConstraint(Sketcher.Constraint("DistanceY", -1, 1, 14, 3, Q("27 mm")))
sketch5.addConstraint(Sketcher.Constraint("DistanceX", 20, 3, -1, 1, Q("34 mm")))
sketch5.addConstraint(Sketcher.Constraint("DistanceY", -1, 1, 20, 3, Q("10 mm")))
sketch5.addConstraint(Sketcher.Constraint("DistanceY", 21, 3, -1, 1, Q("22 mm")))
sketch5.addConstraint(Sketcher.Constraint("DistanceX", 2, 3, 1, 3, Q("11 mm")))
sketch5.addConstraint(Sketcher.Constraint("DistanceY", 1, 3, 2, 3, Q("11 mm")))
sketch5.addConstraint(Sketcher.Constraint("DistanceX", 1, 3, 3, 3, Q("11 mm")))
sketch5.addConstraint(Sketcher.Constraint("DistanceY", 4, 3, 1, 3, Q("11 mm")))
sketch5.addConstraint(Sketcher.Constraint("DistanceX", 1, 3, -1, 1, Q("25.5 mm")))
sketch5.addConstraint(Sketcher.Constraint("DistanceY", -1, 1, 1, 3, Q("41.5 mm")))
sketch5.addConstraint(Sketcher.Constraint("DistanceX", -1, 1, 24, 3, Q("0.5 mm")))
sketch5.addConstraint(Sketcher.Constraint("DistanceY", -1, 1, 24, 3, Q("91.5 mm")))
sketch5.addConstraint(Sketcher.Constraint("Angle", 22, Q("112.34 deg")))
sketch5.addConstraint(Sketcher.Constraint("DistanceX", 16, 3, -1, 1, Q("19.677601 mm")))
sketch5.addConstraint(Sketcher.Constraint("DistanceX", -1, 1, 19, 3, Q("20.677601 mm")))
sketch5.addConstraint(Sketcher.Constraint("DistanceX", 25, 3, -1, 1, Q("17.062899 mm")))
sketch5.addConstraint(Sketcher.Constraint("DistanceX", 23, 3, 18, 3, Q("14.0343 mm")))
sketch5.addConstraint(Sketcher.Constraint("DistanceX", 17, 3, 29, 3, Q("14.0343 mm")))
sketch5.addConstraint(Sketcher.Constraint("DistanceY", 16, 3, 18, 3, Q("13.303569 mm")))
sketch5.addConstraint(Sketcher.Constraint("DistanceY", 17, 3, 19, 3, Q("13.303569 mm")))
sketch5.addConstraint(Sketcher.Constraint("DistanceY", 19, 3, 23, 3, Q("29.89721 mm")))
sketch5.addConstraint(Sketcher.Constraint("DistanceY", 16, 3, 25, 3, Q("17.315209 mm")))
pocket3 = body.newObject("PartDesign::Pocket", "Pocket002")
pocket3.Profile = sketch5
pocket3.Length = 3

# Sketch on XZ plane
sketch6 = body.newObject("Sketcher::SketchObject", "Sketch005")
sketch6.AttachmentSupport = (doc.getObject("XZ_Plane"), [""])
sketch6.MapMode = "FlatFace"
sketch6.AttachmentOffset = App.Placement(App.Vector(0, 0, 127), App.Rotation())
sketch6.addGeometry(Part.LineSegment(App.Vector(-22, 3, 0), App.Vector(-22, 0, 0)), False)
sketch6.addGeometry(Part.LineSegment(App.Vector(-22, 0, 0), App.Vector(28, 0, 0)), False)
sketch6.addGeometry(Part.LineSegment(App.Vector(28, 0, 0), App.Vector(28, 3, 0)), False)
sketch6.addGeometry(Part.LineSegment(App.Vector(28, 3, 0), App.Vector(-22, 3, 0)), False)
sketch6.addConstraint(Sketcher.Constraint("Coincident", 0, 2, 1, 1))
sketch6.addConstraint(Sketcher.Constraint("Coincident", 1, 2, 2, 1))
sketch6.addConstraint(Sketcher.Constraint("Coincident", 2, 2, 3, 1))
sketch6.addConstraint(Sketcher.Constraint("Coincident", 3, 2, 0, 1))
sketch6.addConstraint(Sketcher.Constraint("Vertical", 0))
sketch6.addConstraint(Sketcher.Constraint("Horizontal", 1))
sketch6.addConstraint(Sketcher.Constraint("Vertical", 2))
sketch6.addConstraint(Sketcher.Constraint("Horizontal", 3))
sketch6.addConstraint(Sketcher.Constraint("PointOnObject", 0, 2, -1))
sketch6.addConstraint(Sketcher.Constraint("DistanceX", 1, 1, 1, 2, Q("50 mm")))
sketch6.addConstraint(Sketcher.Constraint("DistanceY", 0, 2, 0, 1, Q("3 mm")))
sketch6.addConstraint(Sketcher.Constraint("DistanceX", 0, 2, -1, 1, Q("22 mm")))
pad3 = body.newObject("PartDesign::Pad", "Pad002")
pad3.Profile = sketch6
pad3.Length = 3

# Sketch on YZ plane
sketch7 = body.newObject("Sketcher::SketchObject", "Sketch006")
sketch7.AttachmentSupport = (doc.getObject("YZ_Plane"), [""])
sketch7.MapMode = "FlatFace"
sketch7.AttachmentOffset = App.Placement(App.Vector(0, 0, -50), App.Rotation())
sketch7.addGeometry(Part.LineSegment(App.Vector(-72, 0, 0), App.Vector(-107, 0, 0)), False)
sketch7.addGeometry(Part.LineSegment(App.Vector(-107, 0, 0), App.Vector(-107, 3, 0)), False)
sketch7.addGeometry(Part.LineSegment(App.Vector(-107, 3, 0), App.Vector(-72, 3, 0)), False)
sketch7.addGeometry(Part.LineSegment(App.Vector(-72, 3, 0), App.Vector(-72, 0, 0)), False)
sketch7.addGeometry(Part.LineSegment(App.Vector(13, 0, 0), App.Vector(-22, 0, 0)), False)
sketch7.addGeometry(Part.LineSegment(App.Vector(-22, 0, 0), App.Vector(-22, 3, 0)), False)
sketch7.addGeometry(Part.LineSegment(App.Vector(-22, 3, 0), App.Vector(13, 3, 0)), False)
sketch7.addGeometry(Part.LineSegment(App.Vector(13, 3, 0), App.Vector(13, 0, 0)), False)
sketch7.addGeometry(Part.LineSegment(App.Vector(83, 0, 0), App.Vector(48, 0, 0)), False)
sketch7.addGeometry(Part.LineSegment(App.Vector(48, 0, 0), App.Vector(48, 3, 0)), False)
sketch7.addGeometry(Part.LineSegment(App.Vector(48, 3, 0), App.Vector(83, 3, 0)), False)
sketch7.addGeometry(Part.LineSegment(App.Vector(83, 3, 0), App.Vector(83, 0, 0)), False)
sketch7.addConstraint(Sketcher.Constraint("Coincident", 0, 2, 1, 1))
sketch7.addConstraint(Sketcher.Constraint("Coincident", 1, 2, 2, 1))
sketch7.addConstraint(Sketcher.Constraint("Coincident", 2, 2, 3, 1))
sketch7.addConstraint(Sketcher.Constraint("Coincident", 3, 2, 0, 1))
sketch7.addConstraint(Sketcher.Constraint("Coincident", 4, 2, 5, 1))
sketch7.addConstraint(Sketcher.Constraint("Coincident", 5, 2, 6, 1))
sketch7.addConstraint(Sketcher.Constraint("Coincident", 6, 2, 7, 1))
sketch7.addConstraint(Sketcher.Constraint("Coincident", 7, 2, 4, 1))
sketch7.addConstraint(Sketcher.Constraint("Coincident", 8, 2, 9, 1))
sketch7.addConstraint(Sketcher.Constraint("Coincident", 9, 2, 10, 1))
sketch7.addConstraint(Sketcher.Constraint("Coincident", 10, 2, 11, 1))
sketch7.addConstraint(Sketcher.Constraint("Coincident", 11, 2, 8, 1))
sketch7.addConstraint(Sketcher.Constraint("Horizontal", 0))
sketch7.addConstraint(Sketcher.Constraint("Vertical", 1))
sketch7.addConstraint(Sketcher.Constraint("Horizontal", 2))
sketch7.addConstraint(Sketcher.Constraint("Vertical", 3))
sketch7.addConstraint(Sketcher.Constraint("Horizontal", 4))
sketch7.addConstraint(Sketcher.Constraint("Vertical", 5))
sketch7.addConstraint(Sketcher.Constraint("Horizontal", 6))
sketch7.addConstraint(Sketcher.Constraint("Vertical", 7))
sketch7.addConstraint(Sketcher.Constraint("Horizontal", 8))
sketch7.addConstraint(Sketcher.Constraint("Vertical", 9))
sketch7.addConstraint(Sketcher.Constraint("Horizontal", 10))
sketch7.addConstraint(Sketcher.Constraint("Vertical", 11))
sketch7.addConstraint(Sketcher.Constraint("PointOnObject", 0, 2, -1))
sketch7.addConstraint(Sketcher.Constraint("PointOnObject", 4, 2, -1))
sketch7.addConstraint(Sketcher.Constraint("PointOnObject", 8, 2, -1))
sketch7.addConstraint(Sketcher.Constraint("Horizontal", 2, 2, 5, 2))
sketch7.addConstraint(Sketcher.Constraint("Horizontal", 6, 2, 9, 2))
sketch7.addConstraint(Sketcher.Constraint("Equal", 2, 4))
sketch7.addConstraint(Sketcher.Constraint("Equal", 6, 8))
sketch7.addConstraint(Sketcher.Constraint("DistanceX", 0, 2, 0, 1, Q("35 mm")))
sketch7.addConstraint(Sketcher.Constraint("DistanceY", 1, 1, 1, 2, Q("3 mm")))
sketch7.addConstraint(Sketcher.Constraint("DistanceX", 0, 2, -1, 1, Q("107 mm")))
sketch7.addConstraint(Sketcher.Constraint("DistanceX", 4, 2, -1, 1, Q("22 mm")))
sketch7.addConstraint(Sketcher.Constraint("DistanceX", -1, 1, 8, 2, Q("48 mm")))
pad4 = body.newObject("PartDesign::Pad", "Pad003")
pad4.Profile = sketch7
pad4.Length = 3
pad4.Reversed = True

doc.recompute()
